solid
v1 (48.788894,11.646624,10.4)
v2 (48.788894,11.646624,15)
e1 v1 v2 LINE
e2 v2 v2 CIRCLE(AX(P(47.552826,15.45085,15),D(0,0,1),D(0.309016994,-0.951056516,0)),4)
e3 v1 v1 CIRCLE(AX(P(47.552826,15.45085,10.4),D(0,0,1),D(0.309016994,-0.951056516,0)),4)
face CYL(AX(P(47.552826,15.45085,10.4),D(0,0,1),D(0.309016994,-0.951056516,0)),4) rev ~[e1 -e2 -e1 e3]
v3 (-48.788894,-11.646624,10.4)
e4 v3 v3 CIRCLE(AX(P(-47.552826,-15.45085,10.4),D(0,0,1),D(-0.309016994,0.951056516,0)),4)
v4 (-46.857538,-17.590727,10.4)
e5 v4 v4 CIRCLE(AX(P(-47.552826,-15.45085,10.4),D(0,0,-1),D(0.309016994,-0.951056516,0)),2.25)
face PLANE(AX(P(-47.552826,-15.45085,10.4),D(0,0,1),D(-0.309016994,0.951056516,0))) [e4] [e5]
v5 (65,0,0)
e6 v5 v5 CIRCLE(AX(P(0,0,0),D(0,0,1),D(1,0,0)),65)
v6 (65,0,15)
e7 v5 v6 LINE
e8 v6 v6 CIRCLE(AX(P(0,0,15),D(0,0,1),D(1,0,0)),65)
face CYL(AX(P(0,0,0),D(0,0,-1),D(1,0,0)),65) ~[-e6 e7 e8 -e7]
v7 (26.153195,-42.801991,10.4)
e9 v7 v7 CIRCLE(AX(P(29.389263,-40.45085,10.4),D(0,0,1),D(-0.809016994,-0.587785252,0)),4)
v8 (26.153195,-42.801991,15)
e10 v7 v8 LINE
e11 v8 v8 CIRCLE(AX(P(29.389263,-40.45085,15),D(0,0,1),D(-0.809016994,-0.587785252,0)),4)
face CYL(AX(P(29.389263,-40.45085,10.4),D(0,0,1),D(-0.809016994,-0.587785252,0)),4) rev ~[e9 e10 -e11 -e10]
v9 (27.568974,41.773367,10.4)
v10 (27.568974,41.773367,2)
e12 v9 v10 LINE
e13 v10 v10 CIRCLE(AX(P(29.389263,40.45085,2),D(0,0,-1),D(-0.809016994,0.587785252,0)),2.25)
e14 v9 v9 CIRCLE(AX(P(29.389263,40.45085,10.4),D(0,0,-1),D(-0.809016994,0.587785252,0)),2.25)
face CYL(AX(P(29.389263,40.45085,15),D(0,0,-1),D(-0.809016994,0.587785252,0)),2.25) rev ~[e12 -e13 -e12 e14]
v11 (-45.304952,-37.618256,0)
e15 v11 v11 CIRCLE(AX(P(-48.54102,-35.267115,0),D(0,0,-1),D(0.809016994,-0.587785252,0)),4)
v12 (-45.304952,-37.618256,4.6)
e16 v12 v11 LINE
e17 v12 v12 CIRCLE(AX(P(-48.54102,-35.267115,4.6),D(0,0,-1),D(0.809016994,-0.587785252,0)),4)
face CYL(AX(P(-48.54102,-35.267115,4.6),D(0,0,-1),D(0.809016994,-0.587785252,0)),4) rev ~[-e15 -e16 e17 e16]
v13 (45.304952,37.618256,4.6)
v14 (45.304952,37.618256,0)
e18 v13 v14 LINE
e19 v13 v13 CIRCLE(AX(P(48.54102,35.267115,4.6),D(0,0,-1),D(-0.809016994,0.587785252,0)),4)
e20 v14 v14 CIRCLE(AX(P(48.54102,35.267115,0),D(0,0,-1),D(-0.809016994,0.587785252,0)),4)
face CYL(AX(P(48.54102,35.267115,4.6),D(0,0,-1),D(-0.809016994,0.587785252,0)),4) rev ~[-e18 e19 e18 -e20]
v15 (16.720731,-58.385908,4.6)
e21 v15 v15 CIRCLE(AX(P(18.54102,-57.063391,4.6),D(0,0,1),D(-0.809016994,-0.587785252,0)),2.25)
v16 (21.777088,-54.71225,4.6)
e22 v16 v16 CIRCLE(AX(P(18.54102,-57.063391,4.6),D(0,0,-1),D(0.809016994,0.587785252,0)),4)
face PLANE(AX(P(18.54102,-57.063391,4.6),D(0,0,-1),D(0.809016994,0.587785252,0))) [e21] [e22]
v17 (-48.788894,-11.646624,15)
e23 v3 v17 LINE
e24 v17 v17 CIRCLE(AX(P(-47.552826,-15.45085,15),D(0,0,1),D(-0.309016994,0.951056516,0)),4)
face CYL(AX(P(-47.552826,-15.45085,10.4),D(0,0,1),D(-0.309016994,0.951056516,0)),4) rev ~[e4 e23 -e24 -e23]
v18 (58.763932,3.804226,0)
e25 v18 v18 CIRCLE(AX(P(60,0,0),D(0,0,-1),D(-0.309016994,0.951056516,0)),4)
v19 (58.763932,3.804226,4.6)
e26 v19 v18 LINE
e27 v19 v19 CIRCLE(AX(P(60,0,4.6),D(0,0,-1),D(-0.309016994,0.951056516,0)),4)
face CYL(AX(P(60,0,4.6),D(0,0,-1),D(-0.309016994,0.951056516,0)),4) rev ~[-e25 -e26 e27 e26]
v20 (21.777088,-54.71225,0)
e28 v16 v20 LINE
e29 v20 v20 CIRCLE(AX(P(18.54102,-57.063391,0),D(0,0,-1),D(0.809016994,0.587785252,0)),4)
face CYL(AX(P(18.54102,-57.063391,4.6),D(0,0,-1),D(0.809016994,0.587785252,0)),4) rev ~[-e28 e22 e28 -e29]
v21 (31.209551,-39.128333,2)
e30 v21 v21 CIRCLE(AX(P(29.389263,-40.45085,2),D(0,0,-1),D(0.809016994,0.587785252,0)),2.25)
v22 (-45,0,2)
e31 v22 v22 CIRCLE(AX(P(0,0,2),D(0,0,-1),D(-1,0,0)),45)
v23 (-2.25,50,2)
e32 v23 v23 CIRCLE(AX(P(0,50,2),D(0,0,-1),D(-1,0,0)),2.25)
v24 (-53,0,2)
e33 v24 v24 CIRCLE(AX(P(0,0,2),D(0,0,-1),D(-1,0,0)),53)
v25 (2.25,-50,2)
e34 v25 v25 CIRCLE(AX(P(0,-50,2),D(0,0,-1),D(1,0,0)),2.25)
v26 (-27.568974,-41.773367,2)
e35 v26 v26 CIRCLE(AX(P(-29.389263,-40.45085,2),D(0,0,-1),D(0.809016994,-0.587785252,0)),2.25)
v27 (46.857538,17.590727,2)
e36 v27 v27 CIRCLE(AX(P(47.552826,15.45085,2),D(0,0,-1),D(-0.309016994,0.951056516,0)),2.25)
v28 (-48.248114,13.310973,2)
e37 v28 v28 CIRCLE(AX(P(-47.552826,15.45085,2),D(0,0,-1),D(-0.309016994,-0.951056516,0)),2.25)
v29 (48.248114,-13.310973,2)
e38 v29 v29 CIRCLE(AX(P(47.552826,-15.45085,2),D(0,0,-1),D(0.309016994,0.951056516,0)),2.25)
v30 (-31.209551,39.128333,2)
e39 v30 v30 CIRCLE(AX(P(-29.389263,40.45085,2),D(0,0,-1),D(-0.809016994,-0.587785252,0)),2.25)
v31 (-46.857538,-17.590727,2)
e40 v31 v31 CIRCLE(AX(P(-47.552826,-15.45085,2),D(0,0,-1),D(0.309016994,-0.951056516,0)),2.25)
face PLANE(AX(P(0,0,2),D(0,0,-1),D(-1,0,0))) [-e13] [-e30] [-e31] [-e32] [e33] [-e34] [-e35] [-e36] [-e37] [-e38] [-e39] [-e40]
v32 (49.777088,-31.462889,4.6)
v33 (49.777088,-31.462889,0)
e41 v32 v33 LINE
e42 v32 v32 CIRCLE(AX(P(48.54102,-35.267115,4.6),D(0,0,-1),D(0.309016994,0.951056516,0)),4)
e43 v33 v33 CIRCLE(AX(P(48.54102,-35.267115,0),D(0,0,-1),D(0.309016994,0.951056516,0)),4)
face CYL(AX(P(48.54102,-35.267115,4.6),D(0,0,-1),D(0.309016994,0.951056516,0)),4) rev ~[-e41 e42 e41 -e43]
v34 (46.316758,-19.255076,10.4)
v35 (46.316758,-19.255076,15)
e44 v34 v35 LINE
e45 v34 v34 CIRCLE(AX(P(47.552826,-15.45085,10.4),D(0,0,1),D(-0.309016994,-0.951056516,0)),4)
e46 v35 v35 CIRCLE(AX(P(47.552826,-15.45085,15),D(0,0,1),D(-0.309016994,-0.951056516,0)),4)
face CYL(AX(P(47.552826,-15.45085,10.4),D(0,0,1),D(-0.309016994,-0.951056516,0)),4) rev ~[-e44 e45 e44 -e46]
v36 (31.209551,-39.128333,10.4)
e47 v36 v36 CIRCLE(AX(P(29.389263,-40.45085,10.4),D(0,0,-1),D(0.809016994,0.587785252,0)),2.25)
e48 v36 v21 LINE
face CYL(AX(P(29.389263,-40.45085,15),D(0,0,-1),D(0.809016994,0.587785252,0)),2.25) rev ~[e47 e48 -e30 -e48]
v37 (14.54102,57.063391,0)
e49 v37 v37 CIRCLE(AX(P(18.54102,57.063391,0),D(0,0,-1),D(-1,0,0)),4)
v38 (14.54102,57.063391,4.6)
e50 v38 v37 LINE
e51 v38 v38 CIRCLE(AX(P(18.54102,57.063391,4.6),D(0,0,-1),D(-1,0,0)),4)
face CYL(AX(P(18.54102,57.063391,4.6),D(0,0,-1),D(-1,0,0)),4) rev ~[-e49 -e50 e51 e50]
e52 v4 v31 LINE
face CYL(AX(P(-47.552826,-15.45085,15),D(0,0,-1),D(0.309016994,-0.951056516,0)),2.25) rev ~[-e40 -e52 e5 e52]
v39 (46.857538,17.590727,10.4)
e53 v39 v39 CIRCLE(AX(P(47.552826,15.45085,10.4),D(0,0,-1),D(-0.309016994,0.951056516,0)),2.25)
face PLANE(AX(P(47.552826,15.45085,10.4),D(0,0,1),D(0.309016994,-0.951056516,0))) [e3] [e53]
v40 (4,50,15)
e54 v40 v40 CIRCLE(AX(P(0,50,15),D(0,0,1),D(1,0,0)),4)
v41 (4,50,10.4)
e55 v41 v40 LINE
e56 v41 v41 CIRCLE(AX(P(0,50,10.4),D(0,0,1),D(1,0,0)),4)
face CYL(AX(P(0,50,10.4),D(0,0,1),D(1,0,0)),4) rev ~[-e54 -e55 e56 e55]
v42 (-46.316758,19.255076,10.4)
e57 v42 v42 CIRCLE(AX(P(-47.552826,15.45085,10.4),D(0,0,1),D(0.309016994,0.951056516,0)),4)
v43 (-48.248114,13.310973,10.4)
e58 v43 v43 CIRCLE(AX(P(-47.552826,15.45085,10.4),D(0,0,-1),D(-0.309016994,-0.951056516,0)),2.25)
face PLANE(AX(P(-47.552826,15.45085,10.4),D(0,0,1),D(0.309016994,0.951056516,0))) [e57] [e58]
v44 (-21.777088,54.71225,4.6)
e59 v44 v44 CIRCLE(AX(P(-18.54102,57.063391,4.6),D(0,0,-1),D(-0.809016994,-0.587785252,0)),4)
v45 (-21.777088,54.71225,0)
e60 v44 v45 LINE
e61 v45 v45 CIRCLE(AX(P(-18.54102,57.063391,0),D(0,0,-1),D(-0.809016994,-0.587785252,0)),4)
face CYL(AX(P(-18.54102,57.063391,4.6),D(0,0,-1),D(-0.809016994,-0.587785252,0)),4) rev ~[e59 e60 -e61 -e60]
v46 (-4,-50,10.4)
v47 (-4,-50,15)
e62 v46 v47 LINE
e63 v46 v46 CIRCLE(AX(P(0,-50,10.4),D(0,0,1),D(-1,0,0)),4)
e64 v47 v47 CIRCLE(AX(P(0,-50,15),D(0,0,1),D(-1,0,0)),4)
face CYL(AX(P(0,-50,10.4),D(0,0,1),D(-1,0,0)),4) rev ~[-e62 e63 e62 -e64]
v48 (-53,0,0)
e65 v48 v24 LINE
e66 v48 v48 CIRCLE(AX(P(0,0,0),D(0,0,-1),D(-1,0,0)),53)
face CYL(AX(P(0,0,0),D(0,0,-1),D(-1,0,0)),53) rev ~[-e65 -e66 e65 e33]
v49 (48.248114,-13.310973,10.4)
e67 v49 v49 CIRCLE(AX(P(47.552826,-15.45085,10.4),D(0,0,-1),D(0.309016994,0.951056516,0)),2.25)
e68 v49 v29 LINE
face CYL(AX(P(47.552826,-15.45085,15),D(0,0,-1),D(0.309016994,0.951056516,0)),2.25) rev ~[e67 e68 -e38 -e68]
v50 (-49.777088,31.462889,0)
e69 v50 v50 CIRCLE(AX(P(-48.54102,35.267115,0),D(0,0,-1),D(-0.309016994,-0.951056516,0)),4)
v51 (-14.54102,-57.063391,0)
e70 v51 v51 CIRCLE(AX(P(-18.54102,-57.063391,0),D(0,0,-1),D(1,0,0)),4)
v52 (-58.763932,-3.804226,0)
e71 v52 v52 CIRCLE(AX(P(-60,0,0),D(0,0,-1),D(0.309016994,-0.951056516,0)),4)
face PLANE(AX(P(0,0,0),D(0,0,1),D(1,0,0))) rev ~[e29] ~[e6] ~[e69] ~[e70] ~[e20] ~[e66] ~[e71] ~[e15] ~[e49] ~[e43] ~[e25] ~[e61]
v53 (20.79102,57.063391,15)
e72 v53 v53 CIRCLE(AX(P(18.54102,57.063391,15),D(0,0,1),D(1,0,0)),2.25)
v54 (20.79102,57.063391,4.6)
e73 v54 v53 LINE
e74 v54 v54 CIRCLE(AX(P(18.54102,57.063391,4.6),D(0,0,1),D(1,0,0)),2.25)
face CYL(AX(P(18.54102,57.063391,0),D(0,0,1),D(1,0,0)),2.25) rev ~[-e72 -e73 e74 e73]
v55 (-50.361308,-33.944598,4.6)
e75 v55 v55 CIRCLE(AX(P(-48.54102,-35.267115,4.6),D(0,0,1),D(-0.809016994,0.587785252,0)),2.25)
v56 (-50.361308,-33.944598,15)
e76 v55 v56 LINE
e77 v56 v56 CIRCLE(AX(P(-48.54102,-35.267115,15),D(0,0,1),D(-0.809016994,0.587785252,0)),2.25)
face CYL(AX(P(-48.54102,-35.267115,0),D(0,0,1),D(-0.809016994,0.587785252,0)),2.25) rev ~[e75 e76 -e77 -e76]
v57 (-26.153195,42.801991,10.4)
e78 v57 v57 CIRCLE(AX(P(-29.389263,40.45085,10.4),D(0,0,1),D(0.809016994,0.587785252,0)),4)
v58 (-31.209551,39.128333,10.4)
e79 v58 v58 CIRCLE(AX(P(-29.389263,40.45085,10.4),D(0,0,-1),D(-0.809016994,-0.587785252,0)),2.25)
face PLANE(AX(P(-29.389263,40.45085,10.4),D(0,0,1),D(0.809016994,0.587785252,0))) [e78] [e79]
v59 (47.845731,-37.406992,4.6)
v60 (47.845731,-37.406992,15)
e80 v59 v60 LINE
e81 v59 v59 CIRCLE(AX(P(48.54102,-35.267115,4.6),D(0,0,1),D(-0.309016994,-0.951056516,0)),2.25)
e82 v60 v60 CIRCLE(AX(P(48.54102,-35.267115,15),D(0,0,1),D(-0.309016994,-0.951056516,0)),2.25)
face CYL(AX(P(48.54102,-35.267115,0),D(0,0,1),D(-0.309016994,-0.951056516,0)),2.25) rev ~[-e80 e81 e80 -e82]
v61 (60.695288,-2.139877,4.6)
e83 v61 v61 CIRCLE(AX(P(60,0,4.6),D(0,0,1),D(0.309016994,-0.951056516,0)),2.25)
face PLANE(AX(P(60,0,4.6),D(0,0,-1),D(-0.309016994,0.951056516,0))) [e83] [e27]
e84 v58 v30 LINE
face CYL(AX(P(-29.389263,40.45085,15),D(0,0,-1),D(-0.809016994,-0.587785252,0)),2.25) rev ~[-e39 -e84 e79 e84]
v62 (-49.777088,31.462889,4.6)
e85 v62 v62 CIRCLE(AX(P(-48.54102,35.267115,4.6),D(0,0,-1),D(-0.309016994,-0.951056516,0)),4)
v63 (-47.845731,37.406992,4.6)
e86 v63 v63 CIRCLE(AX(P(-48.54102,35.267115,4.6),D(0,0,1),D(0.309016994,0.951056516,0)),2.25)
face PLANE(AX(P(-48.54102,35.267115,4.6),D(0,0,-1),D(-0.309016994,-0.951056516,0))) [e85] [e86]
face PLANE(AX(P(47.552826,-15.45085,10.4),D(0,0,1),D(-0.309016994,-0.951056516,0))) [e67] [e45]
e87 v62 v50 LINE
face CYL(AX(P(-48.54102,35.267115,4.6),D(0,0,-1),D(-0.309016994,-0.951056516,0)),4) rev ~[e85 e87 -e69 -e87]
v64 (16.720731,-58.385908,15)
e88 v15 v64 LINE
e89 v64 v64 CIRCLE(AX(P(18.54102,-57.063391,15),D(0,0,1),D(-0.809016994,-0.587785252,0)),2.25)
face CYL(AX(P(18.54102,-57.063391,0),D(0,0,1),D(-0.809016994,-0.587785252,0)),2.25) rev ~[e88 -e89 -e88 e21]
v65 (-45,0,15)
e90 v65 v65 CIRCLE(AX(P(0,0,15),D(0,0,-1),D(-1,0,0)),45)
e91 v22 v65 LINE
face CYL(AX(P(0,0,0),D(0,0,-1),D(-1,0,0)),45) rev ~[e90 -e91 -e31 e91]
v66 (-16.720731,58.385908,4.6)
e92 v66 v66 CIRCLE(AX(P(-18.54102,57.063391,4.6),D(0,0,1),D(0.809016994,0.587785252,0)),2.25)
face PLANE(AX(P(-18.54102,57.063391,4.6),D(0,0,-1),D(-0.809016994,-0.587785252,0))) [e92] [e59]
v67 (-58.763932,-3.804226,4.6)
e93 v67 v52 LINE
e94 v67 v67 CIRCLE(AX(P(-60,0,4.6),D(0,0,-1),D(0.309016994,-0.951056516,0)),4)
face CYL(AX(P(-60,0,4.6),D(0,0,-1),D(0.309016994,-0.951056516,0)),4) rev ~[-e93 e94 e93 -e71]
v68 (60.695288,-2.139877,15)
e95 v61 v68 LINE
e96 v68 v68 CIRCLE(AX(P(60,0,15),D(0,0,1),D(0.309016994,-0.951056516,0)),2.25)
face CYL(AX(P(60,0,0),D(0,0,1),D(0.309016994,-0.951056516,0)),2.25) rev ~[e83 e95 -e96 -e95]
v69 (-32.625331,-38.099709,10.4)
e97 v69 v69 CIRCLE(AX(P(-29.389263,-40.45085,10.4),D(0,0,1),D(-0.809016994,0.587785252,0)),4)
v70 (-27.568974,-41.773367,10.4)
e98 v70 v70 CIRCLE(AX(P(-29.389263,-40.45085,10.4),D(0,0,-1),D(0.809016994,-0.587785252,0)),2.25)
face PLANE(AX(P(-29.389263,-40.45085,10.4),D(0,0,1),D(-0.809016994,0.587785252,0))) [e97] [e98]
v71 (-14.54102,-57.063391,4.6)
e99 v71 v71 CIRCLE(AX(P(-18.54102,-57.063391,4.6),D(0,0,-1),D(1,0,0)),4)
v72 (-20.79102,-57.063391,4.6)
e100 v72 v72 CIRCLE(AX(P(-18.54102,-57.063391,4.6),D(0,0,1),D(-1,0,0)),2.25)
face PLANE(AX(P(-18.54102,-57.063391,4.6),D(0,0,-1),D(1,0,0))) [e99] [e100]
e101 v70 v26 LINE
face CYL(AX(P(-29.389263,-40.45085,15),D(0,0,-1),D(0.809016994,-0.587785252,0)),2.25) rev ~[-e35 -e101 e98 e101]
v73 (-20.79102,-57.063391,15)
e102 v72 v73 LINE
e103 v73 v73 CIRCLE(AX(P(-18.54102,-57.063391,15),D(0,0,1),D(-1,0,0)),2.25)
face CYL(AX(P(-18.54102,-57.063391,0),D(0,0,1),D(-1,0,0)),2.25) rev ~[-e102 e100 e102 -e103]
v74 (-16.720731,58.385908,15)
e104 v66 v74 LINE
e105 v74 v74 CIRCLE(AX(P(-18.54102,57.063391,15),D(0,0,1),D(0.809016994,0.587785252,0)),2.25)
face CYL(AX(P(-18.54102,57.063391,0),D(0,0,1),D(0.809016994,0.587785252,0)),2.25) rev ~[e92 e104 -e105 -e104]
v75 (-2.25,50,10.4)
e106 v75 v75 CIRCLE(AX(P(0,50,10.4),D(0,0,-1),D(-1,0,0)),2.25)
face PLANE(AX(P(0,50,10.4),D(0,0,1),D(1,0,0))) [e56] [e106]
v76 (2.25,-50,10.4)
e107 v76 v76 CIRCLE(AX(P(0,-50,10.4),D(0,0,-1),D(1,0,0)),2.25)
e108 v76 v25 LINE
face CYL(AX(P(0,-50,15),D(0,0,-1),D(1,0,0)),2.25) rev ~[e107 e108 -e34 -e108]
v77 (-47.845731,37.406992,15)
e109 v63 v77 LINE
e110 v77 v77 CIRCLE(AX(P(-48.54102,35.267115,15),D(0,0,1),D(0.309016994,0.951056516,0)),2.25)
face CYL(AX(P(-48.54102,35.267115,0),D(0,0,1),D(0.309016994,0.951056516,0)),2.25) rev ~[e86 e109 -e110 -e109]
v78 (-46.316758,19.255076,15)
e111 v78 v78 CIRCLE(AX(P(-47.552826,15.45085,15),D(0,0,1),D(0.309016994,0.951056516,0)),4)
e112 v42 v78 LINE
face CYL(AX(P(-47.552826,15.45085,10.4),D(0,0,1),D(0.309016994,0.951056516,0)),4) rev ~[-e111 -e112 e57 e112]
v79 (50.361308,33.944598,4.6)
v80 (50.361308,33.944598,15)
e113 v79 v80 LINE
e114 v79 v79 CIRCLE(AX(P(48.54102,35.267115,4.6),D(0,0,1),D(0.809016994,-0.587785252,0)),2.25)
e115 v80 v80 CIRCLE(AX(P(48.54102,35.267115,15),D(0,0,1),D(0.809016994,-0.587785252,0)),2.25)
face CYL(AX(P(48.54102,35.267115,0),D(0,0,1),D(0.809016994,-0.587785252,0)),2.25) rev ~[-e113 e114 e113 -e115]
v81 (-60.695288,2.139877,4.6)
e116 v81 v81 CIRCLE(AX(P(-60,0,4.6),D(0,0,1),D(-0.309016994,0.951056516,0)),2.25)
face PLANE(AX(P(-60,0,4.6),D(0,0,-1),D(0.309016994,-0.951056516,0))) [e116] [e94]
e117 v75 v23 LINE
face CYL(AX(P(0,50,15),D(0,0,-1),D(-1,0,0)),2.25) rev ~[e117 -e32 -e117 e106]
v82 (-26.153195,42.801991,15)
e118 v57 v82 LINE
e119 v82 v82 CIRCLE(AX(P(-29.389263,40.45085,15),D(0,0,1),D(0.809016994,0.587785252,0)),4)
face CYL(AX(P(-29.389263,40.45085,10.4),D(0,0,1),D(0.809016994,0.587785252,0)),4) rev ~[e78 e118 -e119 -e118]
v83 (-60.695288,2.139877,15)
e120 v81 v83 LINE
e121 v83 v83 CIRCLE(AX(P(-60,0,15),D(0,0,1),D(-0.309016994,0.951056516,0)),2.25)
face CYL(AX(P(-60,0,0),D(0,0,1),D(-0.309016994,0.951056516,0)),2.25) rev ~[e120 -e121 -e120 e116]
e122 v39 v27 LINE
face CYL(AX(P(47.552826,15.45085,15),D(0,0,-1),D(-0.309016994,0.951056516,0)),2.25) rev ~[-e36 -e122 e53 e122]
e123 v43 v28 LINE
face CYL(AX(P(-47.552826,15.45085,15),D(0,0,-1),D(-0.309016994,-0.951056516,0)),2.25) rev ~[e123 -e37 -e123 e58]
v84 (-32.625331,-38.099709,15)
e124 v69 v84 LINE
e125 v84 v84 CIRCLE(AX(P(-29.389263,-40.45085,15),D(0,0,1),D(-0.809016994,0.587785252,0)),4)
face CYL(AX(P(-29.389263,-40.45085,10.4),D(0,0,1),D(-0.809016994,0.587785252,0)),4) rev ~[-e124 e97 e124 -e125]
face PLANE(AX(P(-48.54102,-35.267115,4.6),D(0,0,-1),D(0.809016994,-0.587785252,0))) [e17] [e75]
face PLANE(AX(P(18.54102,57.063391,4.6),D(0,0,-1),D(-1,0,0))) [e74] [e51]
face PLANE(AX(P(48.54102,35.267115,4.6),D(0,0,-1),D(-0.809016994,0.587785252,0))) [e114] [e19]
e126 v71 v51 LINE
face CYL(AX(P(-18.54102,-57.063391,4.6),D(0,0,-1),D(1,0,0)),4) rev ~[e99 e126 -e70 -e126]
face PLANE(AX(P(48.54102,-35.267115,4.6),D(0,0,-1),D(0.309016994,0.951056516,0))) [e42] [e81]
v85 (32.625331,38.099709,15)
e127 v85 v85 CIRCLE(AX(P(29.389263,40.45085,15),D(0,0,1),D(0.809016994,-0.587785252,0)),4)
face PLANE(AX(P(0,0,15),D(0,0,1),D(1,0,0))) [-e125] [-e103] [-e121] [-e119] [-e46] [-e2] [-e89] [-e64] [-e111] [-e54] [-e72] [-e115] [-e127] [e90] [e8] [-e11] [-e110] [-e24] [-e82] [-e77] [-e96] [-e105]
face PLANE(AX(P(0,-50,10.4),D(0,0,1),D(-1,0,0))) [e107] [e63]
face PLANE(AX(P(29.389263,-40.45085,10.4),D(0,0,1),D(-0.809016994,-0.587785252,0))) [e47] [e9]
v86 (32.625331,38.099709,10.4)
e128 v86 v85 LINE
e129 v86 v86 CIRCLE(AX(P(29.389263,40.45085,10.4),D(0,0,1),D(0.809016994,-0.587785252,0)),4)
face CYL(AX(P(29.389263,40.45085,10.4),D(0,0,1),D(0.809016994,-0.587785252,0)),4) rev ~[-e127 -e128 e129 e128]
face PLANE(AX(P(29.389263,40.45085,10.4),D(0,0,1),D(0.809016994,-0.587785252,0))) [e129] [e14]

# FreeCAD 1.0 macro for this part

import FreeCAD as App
import Part
import Sketcher
from FreeCAD import Vector
Q = App.Units.Quantity

doc = App.newDocument("Part")
body = doc.addObject("PartDesign::Body", "Body")

# Sketch on XY plane
sketch1 = body.newObject("Sketcher::SketchObject", "Sketch")
sketch1.AttachmentSupport = (doc.getObject("XY_Plane"), [""])
sketch1.MapMode = "FlatFace"
sketch1.addGeometry(Part.Circle(Vector(0, 0, 0), Vector(0, 0, 1), 65), False)
sketch1.addConstraint([
    Sketcher.Constraint("Coincident", 0, 3, -1, 1),
    Sketcher.Constraint("Diameter", 0, Q("130 mm")),
])
pad1 = body.newObject("PartDesign::Pad", "Pad")
pad1.Profile = sketch1
pad1.Length = 15

# Sketch on XY plane
sketch2 = body.newObject("Sketcher::SketchObject", "Sketch001")
sketch2.AttachmentSupport = (doc.getObject("XY_Plane"), [""])
sketch2.MapMode = "FlatFace"
sketch2.addGeometry(Part.Circle(Vector(0, 0, 0), Vector(0, 0, 1), 45), False)
sketch2.addConstraint([
    Sketcher.Constraint("Coincident", 0, 3, -1, 1),
    Sketcher.Constraint("Diameter", 0, Q("90 mm")),
])
pocket1 = body.newObject("PartDesign::Pocket", "Pocket")
pocket1.Profile = sketch2
pocket1.Length = 15
pocket1.Reversed = True

# Sketch on XY plane
sketch3 = body.newObject("Sketcher::SketchObject", "Sketch002")
sketch3.AttachmentSupport = (doc.getObject("XY_Plane"), [""])
sketch3.MapMode = "FlatFace"
sketch3.addGeometry(Part.Circle(Vector(0, 0, 0), Vector(0, 0, 1), 53), False)
sketch3.addConstraint([
    Sketcher.Constraint("Coincident", 0, 3, -1, 1),
    Sketcher.Constraint("Diameter", 0, Q("106 mm")),
])
pocket2 = body.newObject("PartDesign::Pocket", "Pocket001")
pocket2.Profile = sketch3
pocket2.Length = 2
pocket2.Reversed = True

# Sketch on XY plane
sketch4 = body.newObject("Sketcher::SketchObject", "Sketch003")
sketch4.AttachmentSupport = (doc.getObject("XY_Plane"), [""])
sketch4.MapMode = "FlatFace"
sketch4.AttachmentOffset = App.Placement(Vector(0, 0, 15), App.Rotation())
sketch4.addGeometry(Part.Circle(Vector(0, 50, 0), Vector(0, 0, 1), 2.2), False)
sketch4.addConstraint([
    Sketcher.Constraint("PointOnObject", 0, 3, -2),
    Sketcher.Constraint("Diameter", 0, Q("4.5 mm")),
    Sketcher.Constraint("DistanceY", -1, 1, 0, 3, Q("50 mm")),
])
doc.recompute()
hole = body.newObject("PartDesign::Hole", "Hole")
hole.Profile = sketch4
hole.ThreadType = "None"
hole.Diameter = 4.5
hole.DepthType = "ThroughAll"
hole.HoleCutType = "Counterbore"
hole.HoleCutDiameter = 8
hole.HoleCutDepth = 4.6
doc.recompute()

polarpattern = body.newObject("PartDesign::PolarPattern", "PolarPattern")
polarpattern.Originals = [hole]
polarpattern.Axis = (doc.getObject("Z_Axis"), [""])
polarpattern.Angle = 360
polarpattern.Occurrences = 10
body.Tip = polarpattern

# Sketch on XY plane
sketch5 = body.newObject("Sketcher::SketchObject", "Sketch004")
sketch5.AttachmentSupport = (doc.getObject("XY_Plane"), [""])
sketch5.MapMode = "FlatFace"
sketch5.addGeometry(Part.Circle(Vector(18.5, 57.1, 0), Vector(0, 0, 1), 2.2), False)
sketch5.addConstraint([
    Sketcher.Constraint("Diameter", 0, Q("4.5 mm")),
    Sketcher.Constraint("DistanceX", -1, 1, 0, 3, Q("18.54102 mm")),
    Sketcher.Constraint("DistanceY", -1, 1, 0, 3, Q("57.063391 mm")),
])
doc.recompute()
hole2 = body.newObject("PartDesign::Hole", "Hole001")
hole2.Profile = sketch5
hole2.ThreadType = "None"
hole2.Diameter = 4.5
hole2.DepthType = "ThroughAll"
hole2.HoleCutType = "Counterbore"
hole2.HoleCutDiameter = 8
hole2.HoleCutDepth = 4.6
hole2.Reversed = True
doc.recompute()

polarpattern2 = body.newObject("PartDesign::PolarPattern", "PolarPattern001")
polarpattern2.Originals = [hole2]
polarpattern2.Axis = (doc.getObject("Z_Axis"), [""])
polarpattern2.Angle = 360
polarpattern2.Occurrences = 10
body.Tip = polarpattern2

doc.recompute()
